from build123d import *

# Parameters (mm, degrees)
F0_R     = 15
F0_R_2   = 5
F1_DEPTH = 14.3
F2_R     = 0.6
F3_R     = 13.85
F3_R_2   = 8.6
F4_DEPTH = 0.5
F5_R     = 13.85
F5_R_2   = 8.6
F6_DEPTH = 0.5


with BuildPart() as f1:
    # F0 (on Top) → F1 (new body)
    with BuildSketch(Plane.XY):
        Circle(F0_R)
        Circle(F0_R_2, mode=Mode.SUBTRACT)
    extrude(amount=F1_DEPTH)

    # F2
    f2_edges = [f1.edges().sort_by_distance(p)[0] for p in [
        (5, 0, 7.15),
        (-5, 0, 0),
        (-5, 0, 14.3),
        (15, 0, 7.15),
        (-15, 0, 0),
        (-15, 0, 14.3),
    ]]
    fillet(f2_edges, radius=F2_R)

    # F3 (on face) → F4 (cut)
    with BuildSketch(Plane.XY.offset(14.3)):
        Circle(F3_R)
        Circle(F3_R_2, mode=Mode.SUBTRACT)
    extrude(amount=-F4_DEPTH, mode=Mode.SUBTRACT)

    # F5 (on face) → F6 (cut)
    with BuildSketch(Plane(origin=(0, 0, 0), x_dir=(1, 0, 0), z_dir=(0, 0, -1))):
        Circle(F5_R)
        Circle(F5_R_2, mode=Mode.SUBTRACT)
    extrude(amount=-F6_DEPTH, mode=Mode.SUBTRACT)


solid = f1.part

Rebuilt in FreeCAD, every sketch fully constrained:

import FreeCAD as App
import Part
import Sketcher
from FreeCAD import Vector
Q = App.Units.Quantity

doc = App.newDocument("Part")
body = doc.addObject("PartDesign::Body", "Body")

# Sketch on XY plane
sketch1 = body.newObject("Sketcher::SketchObject", "Sketch")
sketch1.AttachmentSupport = (doc.getObject("XY_Plane"), [""])
sketch1.MapMode = "FlatFace"
sketch1.addGeometry([
    Part.Circle(Vector(0, 0, 0), Vector(0, 0, 1), 15),
    Part.Circle(Vector(0, 0, 0), Vector(0, 0, 1), 5),
], False)
sketch1.addConstraint([
    Sketcher.Constraint("Coincident", 0, 3, -1, 1),
    Sketcher.Constraint("Coincident", 1, 3, -1, 1),
    Sketcher.Constraint("Diameter", 0, Q("30 mm")),
    Sketcher.Constraint("Diameter", 1, Q("10 mm")),
])
pad1 = body.newObject("PartDesign::Pad", "Pad")
pad1.Profile = sketch1
pad1.Length = 14.3
doc.recompute()

fillet = body.newObject("PartDesign::Fillet", "Fillet")
fillet.Base = (pad1, ["Edge1"])
fillet.UseAllEdges = True
fillet.Radius = 0.6

# Sketch on XY plane
sketch2 = body.newObject("Sketcher::SketchObject", "Sketch001")
sketch2.AttachmentSupport = (doc.getObject("XY_Plane"), [""])
sketch2.MapMode = "FlatFace"
sketch2.AttachmentOffset = App.Placement(Vector(0, 0, 14.3), App.Rotation())
sketch2.addGeometry([
    Part.Circle(Vector(0, 0, 0), Vector(0, 0, 1), 14),
    Part.Circle(Vector(0, 0, 0), Vector(0, 0, 1), 9),
], False)
sketch2.addConstraint([
    Sketcher.Constraint("Coincident", 0, 3, -1, 1),
    Sketcher.Constraint("Coincident", 1, 3, -1, 1),
    Sketcher.Constraint("Diameter", 0, Q("27.7 mm")),
    Sketcher.Constraint("Diameter", 1, Q("17.2 mm")),
])
pocket1 = body.newObject("PartDesign::Pocket", "Pocket")
pocket1.Profile = sketch2
pocket1.Length = 0.5

# Sketch on XY plane
sketch3 = body.newObject("Sketcher::SketchObject", "Sketch002")
sketch3.AttachmentSupport = (doc.getObject("XY_Plane"), [""])
sketch3.MapMode = "FlatFace"
sketch3.addGeometry([
    Part.Circle(Vector(0, 0, 0), Vector(0, 0, 1), 14),
    Part.Circle(Vector(0, 0, 0), Vector(0, 0, 1), 9),
], False)
sketch3.addConstraint([
    Sketcher.Constraint("Coincident", 0, 3, -1, 1),
    Sketcher.Constraint("Coincident", 1, 3, -1, 1),
    Sketcher.Constraint("Diameter", 0, Q("27.7 mm")),
    Sketcher.Constraint("Diameter", 1, Q("17.2 mm")),
])
pocket2 = body.newObject("PartDesign::Pocket", "Pocket001")
pocket2.Profile = sketch3
pocket2.Length = 0.5
pocket2.Reversed = True

doc.recompute()
